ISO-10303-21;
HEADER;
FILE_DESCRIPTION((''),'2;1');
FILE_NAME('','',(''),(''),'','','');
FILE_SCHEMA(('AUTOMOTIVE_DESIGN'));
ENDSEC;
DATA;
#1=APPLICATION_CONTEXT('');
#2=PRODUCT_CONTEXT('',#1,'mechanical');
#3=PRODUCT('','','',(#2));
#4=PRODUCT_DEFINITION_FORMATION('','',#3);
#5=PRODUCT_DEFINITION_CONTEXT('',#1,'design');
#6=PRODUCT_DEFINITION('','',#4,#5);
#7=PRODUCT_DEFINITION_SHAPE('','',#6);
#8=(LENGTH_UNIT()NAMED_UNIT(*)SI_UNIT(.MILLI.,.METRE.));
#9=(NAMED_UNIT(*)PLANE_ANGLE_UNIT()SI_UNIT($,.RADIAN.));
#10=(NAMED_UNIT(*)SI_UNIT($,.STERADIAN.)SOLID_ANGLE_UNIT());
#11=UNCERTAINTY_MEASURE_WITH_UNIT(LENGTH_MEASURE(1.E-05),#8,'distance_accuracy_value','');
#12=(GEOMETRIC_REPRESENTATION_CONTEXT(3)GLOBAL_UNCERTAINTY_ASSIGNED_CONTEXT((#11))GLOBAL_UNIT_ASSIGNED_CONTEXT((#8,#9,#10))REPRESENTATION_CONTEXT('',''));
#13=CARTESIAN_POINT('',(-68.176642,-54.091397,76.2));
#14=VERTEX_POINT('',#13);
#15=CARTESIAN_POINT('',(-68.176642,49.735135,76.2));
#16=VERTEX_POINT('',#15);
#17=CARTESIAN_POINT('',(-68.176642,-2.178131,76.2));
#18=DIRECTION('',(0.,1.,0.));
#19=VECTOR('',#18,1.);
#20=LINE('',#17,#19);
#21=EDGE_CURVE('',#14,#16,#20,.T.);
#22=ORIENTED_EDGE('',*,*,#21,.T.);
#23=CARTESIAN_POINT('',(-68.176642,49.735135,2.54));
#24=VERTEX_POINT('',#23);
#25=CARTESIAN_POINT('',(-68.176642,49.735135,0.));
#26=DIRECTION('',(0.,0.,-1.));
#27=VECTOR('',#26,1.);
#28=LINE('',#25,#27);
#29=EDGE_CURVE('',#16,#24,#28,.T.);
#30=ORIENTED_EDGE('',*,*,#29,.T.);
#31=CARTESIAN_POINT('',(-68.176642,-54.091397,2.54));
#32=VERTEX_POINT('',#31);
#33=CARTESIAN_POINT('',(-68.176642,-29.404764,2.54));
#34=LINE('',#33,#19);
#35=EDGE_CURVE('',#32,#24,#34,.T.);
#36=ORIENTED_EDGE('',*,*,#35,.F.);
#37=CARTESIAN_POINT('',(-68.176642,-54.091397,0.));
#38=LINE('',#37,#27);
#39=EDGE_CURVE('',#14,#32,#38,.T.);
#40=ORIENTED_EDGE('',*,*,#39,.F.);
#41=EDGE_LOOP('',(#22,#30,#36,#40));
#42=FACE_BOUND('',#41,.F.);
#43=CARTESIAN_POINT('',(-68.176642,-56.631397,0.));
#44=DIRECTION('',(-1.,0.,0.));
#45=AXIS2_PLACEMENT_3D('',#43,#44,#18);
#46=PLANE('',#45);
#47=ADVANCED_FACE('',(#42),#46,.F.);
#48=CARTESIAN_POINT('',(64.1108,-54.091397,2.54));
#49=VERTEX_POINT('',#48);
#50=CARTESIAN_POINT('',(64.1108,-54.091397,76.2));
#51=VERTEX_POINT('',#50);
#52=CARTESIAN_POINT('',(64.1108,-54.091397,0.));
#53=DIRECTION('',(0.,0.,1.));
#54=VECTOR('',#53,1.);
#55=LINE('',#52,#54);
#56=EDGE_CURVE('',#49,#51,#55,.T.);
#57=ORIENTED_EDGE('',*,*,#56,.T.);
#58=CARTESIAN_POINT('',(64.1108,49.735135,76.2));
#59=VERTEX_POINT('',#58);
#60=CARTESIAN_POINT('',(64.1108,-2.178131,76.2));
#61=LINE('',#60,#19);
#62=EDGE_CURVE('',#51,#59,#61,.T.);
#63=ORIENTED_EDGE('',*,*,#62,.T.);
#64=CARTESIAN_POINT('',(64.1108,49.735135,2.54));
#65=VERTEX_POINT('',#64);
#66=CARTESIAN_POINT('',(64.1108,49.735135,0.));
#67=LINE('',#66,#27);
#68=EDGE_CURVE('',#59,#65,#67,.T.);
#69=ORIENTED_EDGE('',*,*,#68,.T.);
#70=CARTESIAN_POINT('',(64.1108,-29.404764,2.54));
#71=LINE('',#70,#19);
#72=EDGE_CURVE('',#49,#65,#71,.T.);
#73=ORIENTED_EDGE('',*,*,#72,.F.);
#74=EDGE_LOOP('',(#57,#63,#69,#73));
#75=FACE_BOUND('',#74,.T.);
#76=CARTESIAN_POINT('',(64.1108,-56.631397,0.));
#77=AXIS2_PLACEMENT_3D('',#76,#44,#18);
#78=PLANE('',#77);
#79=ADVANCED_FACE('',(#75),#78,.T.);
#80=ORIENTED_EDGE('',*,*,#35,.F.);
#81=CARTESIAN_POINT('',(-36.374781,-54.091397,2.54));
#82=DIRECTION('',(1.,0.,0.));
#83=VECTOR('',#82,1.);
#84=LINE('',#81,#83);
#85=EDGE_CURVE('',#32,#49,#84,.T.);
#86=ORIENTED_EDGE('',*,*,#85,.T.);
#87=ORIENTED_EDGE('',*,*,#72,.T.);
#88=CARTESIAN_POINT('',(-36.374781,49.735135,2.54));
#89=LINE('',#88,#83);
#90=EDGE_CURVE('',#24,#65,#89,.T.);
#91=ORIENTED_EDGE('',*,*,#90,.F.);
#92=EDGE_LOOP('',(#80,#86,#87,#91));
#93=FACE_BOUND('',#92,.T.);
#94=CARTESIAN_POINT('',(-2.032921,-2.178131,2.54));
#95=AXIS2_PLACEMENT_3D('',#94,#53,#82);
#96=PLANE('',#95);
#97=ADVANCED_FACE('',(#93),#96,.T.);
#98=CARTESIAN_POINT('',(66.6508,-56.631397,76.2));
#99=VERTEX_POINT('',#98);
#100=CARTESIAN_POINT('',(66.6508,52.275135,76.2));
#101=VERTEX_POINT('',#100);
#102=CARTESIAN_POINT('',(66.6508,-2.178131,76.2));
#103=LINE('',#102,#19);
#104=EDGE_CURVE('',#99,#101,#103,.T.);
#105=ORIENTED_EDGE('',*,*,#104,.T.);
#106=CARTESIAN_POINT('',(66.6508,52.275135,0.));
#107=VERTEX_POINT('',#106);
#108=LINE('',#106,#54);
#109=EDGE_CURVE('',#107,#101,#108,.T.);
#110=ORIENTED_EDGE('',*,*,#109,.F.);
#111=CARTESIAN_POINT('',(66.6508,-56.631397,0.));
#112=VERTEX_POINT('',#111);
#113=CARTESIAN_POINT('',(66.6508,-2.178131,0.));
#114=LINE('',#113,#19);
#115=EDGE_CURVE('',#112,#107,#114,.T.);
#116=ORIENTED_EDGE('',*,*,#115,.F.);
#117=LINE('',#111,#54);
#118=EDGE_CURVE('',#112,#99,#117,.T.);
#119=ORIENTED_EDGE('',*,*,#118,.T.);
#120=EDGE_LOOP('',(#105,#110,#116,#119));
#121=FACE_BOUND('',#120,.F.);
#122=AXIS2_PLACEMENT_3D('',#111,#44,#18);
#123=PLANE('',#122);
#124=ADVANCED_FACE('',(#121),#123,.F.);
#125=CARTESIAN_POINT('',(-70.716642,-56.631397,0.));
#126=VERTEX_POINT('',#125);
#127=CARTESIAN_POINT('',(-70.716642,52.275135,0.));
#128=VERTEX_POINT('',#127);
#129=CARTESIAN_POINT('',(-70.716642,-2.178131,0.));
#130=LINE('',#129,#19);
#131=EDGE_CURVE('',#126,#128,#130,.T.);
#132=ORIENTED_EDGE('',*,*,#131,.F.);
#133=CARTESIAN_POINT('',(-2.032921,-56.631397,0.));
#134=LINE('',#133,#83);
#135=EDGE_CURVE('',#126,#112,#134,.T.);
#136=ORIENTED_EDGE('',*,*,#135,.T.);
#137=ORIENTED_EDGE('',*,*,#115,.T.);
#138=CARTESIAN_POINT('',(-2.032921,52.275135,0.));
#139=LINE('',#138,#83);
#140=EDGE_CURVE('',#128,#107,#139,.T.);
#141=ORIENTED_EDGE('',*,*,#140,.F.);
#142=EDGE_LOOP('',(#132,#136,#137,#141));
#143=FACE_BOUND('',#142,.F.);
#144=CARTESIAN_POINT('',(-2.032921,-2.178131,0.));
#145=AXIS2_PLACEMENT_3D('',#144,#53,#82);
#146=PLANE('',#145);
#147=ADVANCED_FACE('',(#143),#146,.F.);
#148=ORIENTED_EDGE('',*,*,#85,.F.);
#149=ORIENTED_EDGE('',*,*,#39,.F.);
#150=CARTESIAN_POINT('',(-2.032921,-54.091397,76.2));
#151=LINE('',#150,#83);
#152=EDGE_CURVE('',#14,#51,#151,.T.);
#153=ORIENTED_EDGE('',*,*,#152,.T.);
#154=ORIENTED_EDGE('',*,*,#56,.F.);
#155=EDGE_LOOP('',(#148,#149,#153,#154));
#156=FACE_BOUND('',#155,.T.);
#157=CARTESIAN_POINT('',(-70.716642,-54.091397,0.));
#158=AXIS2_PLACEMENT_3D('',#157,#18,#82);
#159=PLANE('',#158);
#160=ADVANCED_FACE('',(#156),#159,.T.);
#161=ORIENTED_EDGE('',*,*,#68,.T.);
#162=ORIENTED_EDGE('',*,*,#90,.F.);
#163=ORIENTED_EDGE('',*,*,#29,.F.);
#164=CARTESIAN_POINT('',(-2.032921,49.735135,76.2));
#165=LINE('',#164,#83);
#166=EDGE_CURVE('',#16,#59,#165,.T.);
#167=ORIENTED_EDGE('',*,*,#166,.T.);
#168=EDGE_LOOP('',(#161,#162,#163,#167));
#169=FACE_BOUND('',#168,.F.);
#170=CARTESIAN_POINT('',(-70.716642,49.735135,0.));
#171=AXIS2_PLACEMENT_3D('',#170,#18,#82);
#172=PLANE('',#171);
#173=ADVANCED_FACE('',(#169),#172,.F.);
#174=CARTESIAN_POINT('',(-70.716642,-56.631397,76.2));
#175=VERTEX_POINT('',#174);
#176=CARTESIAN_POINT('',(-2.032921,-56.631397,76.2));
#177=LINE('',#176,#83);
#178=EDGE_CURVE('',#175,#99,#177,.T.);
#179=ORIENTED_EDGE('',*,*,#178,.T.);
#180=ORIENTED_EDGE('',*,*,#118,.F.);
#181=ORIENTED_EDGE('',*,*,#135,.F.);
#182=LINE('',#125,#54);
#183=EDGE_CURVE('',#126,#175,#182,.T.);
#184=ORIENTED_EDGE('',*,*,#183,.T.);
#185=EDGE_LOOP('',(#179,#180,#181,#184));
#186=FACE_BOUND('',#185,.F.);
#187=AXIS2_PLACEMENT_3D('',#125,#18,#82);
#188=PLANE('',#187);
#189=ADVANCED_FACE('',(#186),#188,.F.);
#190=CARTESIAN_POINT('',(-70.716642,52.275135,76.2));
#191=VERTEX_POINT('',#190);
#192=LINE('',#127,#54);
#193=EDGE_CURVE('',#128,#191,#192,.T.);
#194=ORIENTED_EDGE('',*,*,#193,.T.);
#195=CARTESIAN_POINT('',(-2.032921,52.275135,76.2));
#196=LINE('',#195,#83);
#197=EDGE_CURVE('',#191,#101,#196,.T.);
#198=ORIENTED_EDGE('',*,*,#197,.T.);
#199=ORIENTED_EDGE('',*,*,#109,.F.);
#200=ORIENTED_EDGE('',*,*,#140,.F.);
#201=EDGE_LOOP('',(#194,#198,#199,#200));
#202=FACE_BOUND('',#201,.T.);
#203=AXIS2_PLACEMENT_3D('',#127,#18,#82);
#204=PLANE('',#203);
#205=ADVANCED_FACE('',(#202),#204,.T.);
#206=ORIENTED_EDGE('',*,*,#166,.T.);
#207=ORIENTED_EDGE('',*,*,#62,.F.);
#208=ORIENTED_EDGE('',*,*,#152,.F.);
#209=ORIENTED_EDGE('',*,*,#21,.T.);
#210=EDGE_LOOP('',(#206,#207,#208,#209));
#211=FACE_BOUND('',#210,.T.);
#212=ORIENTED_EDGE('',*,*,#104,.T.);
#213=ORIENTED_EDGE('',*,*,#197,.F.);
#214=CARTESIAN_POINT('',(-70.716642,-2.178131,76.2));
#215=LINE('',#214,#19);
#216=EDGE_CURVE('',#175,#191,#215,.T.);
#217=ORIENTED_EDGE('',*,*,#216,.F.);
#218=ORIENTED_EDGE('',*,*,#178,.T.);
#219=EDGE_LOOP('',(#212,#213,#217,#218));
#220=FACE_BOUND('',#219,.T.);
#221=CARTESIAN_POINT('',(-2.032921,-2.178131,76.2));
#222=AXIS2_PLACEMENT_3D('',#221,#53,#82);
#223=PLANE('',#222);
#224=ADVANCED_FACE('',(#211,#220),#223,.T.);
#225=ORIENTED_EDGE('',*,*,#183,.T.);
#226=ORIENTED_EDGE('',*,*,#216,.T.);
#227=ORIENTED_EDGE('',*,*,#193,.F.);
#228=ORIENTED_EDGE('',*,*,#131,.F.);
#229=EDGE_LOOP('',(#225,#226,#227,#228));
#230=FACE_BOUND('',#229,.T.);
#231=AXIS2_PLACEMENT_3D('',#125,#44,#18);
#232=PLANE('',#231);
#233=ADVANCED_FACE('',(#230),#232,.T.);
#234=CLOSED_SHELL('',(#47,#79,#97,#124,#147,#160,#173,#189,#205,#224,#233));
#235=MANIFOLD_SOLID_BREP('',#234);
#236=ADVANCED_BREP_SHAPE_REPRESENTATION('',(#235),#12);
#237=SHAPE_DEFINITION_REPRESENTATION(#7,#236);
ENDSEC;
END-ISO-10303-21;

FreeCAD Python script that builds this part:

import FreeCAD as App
import Part
import Sketcher
from FreeCAD import Vector
Q = App.Units.Quantity


def faces_at(feature, points):
    """Names of the faces that lie closest to the given points."""
    faces = feature.Shape.Faces
    near = lambda p: min(range(len(faces)), key=lambda i: faces[i].distToShape(Part.Vertex(*p))[0])
    return sorted({f"Face{near(p) + 1}" for p in points})


def add_polygon(sketch, points):
    """Adds a closed chain of lines whose ends are joined by coincident constraints."""
    first, n = sketch.GeometryCount, len(points)
    for a, b in zip(points, points[1:] + points[:1]):
        sketch.addGeometry(Part.LineSegment(App.Vector(*a, 0), App.Vector(*b, 0)), False)
    for i in range(n):
        sketch.addConstraint(Sketcher.Constraint("Coincident", first + i, 2, first + (i + 1) % n, 1))

doc = App.newDocument("Part")
body = doc.addObject("PartDesign::Body", "Body")

# Sketch on XY plane
sketch1 = body.newObject("Sketcher::SketchObject", "Sketch")
sketch1.AttachmentSupport = (doc.getObject("XY_Plane"), [""])
sketch1.MapMode = "FlatFace"
add_polygon(sketch1, [(-71, 52), (-71, -57), (67, -57), (67, 52)])  # lines 0-3
sketch1.addConstraint(Sketcher.Constraint("Vertical", 0))
sketch1.addConstraint(Sketcher.Constraint("Horizontal", 1))
sketch1.addConstraint(Sketcher.Constraint("Vertical", 2))
sketch1.addConstraint(Sketcher.Constraint("Horizontal", 3))
sketch1.addConstraint(Sketcher.Constraint("DistanceX", 1, 1, 1, 2, Q("137.367442 mm")))
sketch1.addConstraint(Sketcher.Constraint("DistanceX", -1, 1, 1, 2, Q("66.6508 mm")))
sketch1.addConstraint(Sketcher.Constraint("DistanceY", 0, 2, 0, 1, Q("108.906533 mm")))
sketch1.addConstraint(Sketcher.Constraint("DistanceY", 0, 2, -1, 1, Q("56.631397 mm")))
pad1 = body.newObject("PartDesign::Pad", "Pad")
pad1.Profile = sketch1
pad1.Length = Q("3 in")
doc.recompute()

thickness = body.newObject("PartDesign::Thickness", "Thickness")
thickness.Base = (pad1, faces_at(pad1, [(-2.033, -2.178, 76.2)]))
thickness.Value = Q("0.1 in")
thickness.Reversed = True
thickness.Join = "Arc"

doc.recompute()
